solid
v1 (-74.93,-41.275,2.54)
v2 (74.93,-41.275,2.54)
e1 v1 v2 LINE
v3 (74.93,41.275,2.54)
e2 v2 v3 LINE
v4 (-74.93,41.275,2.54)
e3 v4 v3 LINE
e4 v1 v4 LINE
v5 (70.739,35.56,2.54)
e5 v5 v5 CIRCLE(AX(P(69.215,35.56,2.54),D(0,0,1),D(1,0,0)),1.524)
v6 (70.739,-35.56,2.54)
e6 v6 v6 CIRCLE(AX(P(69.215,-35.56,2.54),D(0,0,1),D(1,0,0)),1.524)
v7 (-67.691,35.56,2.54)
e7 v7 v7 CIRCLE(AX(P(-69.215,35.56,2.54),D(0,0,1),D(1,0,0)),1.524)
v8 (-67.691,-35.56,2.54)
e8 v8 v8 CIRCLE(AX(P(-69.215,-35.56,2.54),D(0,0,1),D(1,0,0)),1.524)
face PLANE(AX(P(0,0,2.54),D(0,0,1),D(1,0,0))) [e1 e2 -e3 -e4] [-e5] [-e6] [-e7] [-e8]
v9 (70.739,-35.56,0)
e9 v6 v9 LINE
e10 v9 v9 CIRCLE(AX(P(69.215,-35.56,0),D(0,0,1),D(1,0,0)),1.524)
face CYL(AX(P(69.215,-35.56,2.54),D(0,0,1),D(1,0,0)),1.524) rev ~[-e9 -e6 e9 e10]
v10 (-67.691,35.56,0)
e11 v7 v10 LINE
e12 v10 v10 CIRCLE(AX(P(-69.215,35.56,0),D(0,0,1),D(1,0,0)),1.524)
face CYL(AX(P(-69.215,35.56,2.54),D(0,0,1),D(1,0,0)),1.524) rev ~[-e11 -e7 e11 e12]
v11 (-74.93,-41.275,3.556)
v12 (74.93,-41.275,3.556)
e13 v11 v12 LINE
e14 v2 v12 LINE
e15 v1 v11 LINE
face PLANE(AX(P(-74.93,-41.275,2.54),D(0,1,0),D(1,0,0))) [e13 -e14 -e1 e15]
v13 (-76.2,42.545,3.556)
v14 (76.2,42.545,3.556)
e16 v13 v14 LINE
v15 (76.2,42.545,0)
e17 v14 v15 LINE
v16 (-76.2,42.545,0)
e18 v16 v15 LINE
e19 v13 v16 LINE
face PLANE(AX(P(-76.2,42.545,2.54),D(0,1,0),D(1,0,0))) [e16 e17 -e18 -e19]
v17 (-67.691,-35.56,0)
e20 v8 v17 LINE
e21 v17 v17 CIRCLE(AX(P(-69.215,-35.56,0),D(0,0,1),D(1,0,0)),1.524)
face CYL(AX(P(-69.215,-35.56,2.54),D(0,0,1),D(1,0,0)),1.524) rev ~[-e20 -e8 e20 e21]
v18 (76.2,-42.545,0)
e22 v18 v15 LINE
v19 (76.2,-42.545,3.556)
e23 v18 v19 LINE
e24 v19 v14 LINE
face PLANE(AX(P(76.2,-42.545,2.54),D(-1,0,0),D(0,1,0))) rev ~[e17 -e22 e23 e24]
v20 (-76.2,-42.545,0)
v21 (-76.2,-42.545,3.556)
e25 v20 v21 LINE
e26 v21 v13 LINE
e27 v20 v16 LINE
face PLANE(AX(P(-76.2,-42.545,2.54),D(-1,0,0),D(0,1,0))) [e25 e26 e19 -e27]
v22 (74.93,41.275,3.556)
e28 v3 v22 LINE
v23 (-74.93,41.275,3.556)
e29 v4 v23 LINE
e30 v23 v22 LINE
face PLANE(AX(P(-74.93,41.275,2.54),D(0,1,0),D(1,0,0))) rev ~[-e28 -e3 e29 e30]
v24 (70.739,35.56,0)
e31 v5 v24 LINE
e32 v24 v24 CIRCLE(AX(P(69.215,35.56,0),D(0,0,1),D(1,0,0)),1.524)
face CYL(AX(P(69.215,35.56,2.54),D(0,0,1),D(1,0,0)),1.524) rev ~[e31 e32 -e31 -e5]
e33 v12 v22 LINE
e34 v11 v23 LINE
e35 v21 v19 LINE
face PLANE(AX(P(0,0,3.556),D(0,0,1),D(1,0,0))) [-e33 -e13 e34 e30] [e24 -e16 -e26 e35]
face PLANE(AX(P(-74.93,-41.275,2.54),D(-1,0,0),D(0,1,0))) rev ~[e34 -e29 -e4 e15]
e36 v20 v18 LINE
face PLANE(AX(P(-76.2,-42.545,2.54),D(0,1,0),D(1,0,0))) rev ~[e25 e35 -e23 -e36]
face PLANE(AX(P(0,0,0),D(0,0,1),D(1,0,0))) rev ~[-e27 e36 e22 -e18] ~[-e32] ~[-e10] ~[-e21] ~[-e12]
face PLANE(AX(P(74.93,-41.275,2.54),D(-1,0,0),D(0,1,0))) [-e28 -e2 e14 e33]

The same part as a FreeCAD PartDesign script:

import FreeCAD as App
import Part
import Sketcher
from FreeCAD import Vector
Q = App.Units.Quantity


def add_polygon(sketch, points):
    """Adds a closed chain of lines whose ends are joined by coincident constraints."""
    first, n = sketch.GeometryCount, len(points)
    for a, b in zip(points, points[1:] + points[:1]):
        sketch.addGeometry(Part.LineSegment(App.Vector(*a, 0), App.Vector(*b, 0)), False)
    for i in range(n):
        sketch.addConstraint(Sketcher.Constraint("Coincident", first + i, 2, first + (i + 1) % n, 1))

doc = App.newDocument("Part")
body = doc.addObject("PartDesign::Body", "Body")

sketch1 = body.newObject("Sketcher::SketchObject", "Sketch")
sketch1.AttachmentSupport = (doc.getObject("XY_Plane"), [""])
sketch1.MapMode = "FlatFace"
add_polygon(sketch1, [(-76, 43), (-76, -43), (76, -43), (76, 43)])
sketch1.addConstraint([
    Sketcher.Constraint("Vertical", 0),
    Sketcher.Constraint("Horizontal", 1),
    Sketcher.Constraint("Vertical", 2),
    Sketcher.Constraint("Horizontal", 3),
    Sketcher.Constraint("Symmetric", 0, 2, 2, 2, -1, 1),
    Sketcher.Constraint("DistanceX", 1, 1, 1, 2, Q("6 in")),
    Sketcher.Constraint("DistanceY", 0, 2, 0, 1, Q("3.35 in")),
])
pad1 = body.newObject("PartDesign::Pad", "Pad")
pad1.Profile = sketch1
pad1.Length = Q("0.1 in")

sketch2 = body.newObject("Sketcher::SketchObject", "Sketch001")
sketch2.AttachmentSupport = (doc.getObject("XY_Plane"), [""])
sketch2.MapMode = "FlatFace"
sketch2.AttachmentOffset = App.Placement(Vector(0, 0, 0.1 * 25.4), App.Rotation())
add_polygon(sketch2, [(-76, 43), (-76, -43), (76, -43), (76, 43)])
add_polygon(sketch2, [(75, -41), (-75, -41), (-75, 41), (75, 41)])
sketch2.addConstraint([
    Sketcher.Constraint("Vertical", 0),
    Sketcher.Constraint("Horizontal", 1),
    Sketcher.Constraint("Vertical", 2),
    Sketcher.Constraint("Horizontal", 3),
    Sketcher.Constraint("Horizontal", 4),
    Sketcher.Constraint("Vertical", 5),
    Sketcher.Constraint("Horizontal", 6),
    Sketcher.Constraint("Vertical", 7),
    Sketcher.Constraint("Symmetric", 0, 2, 2, 2, -1, 1),
    Sketcher.Constraint("Symmetric", 4, 2, 6, 2, -1, 1),
    Sketcher.Constraint("DistanceX", 1, 1, 1, 2, Q("6 in")),
    Sketcher.Constraint("DistanceX", 4, 2, 4, 1, Q("5.9 in")),
    Sketcher.Constraint("DistanceY", 0, 2, 0, 1, Q("3.35 in")),
    Sketcher.Constraint("DistanceY", 5, 1, 5, 2, Q("3.25 in")),
])
pad2 = body.newObject("PartDesign::Pad", "Pad001")
pad2.Profile = sketch2
pad2.Length = Q("0.04 in")

sketch3 = body.newObject("Sketcher::SketchObject", "Sketch002")
sketch3.AttachmentSupport = (doc.getObject("XY_Plane"), [""])
sketch3.MapMode = "FlatFace"
sketch3.AttachmentOffset = App.Placement(Vector(0, 0, 0.1 * 25.4), App.Rotation())
sketch3.addGeometry([
    Part.Circle(Vector(69.2, 35.6, 0), Vector(0, 0, 1), 1.5),
    Part.Circle(Vector(69.2, -35.6, 0), Vector(0, 0, 1), 1.5),
    Part.Circle(Vector(-69.2, 35.6, 0), Vector(0, 0, 1), 1.5),
    Part.Circle(Vector(-69.2, -35.6, 0), Vector(0, 0, 1), 1.5),
], False)
sketch3.addConstraint([
    Sketcher.Constraint("Equal", 0, 1),
    Sketcher.Constraint("Equal", 1, 2),
    Sketcher.Constraint("Equal", 2, 3),
    Sketcher.Constraint("Symmetric", 1, 3, 2, 3, -1, 1),
    Sketcher.Constraint("Symmetric", 0, 3, 3, 3, -1, 1),
    Sketcher.Constraint("Symmetric", 0, 3, 2, 3, -2),
    Sketcher.Constraint("Diameter", 0, Q("0.12 in")),
    Sketcher.Constraint("DistanceY", -1, 1, 0, 3, Q("1.4 in")),
    Sketcher.Constraint("DistanceX", 2, 3, 0, 3, Q("5.45 in")),
])
pocket1 = body.newObject("PartDesign::Pocket", "Pocket")
pocket1.Profile = sketch3
pocket1.Length = Q("1 in")

doc.recompute()
